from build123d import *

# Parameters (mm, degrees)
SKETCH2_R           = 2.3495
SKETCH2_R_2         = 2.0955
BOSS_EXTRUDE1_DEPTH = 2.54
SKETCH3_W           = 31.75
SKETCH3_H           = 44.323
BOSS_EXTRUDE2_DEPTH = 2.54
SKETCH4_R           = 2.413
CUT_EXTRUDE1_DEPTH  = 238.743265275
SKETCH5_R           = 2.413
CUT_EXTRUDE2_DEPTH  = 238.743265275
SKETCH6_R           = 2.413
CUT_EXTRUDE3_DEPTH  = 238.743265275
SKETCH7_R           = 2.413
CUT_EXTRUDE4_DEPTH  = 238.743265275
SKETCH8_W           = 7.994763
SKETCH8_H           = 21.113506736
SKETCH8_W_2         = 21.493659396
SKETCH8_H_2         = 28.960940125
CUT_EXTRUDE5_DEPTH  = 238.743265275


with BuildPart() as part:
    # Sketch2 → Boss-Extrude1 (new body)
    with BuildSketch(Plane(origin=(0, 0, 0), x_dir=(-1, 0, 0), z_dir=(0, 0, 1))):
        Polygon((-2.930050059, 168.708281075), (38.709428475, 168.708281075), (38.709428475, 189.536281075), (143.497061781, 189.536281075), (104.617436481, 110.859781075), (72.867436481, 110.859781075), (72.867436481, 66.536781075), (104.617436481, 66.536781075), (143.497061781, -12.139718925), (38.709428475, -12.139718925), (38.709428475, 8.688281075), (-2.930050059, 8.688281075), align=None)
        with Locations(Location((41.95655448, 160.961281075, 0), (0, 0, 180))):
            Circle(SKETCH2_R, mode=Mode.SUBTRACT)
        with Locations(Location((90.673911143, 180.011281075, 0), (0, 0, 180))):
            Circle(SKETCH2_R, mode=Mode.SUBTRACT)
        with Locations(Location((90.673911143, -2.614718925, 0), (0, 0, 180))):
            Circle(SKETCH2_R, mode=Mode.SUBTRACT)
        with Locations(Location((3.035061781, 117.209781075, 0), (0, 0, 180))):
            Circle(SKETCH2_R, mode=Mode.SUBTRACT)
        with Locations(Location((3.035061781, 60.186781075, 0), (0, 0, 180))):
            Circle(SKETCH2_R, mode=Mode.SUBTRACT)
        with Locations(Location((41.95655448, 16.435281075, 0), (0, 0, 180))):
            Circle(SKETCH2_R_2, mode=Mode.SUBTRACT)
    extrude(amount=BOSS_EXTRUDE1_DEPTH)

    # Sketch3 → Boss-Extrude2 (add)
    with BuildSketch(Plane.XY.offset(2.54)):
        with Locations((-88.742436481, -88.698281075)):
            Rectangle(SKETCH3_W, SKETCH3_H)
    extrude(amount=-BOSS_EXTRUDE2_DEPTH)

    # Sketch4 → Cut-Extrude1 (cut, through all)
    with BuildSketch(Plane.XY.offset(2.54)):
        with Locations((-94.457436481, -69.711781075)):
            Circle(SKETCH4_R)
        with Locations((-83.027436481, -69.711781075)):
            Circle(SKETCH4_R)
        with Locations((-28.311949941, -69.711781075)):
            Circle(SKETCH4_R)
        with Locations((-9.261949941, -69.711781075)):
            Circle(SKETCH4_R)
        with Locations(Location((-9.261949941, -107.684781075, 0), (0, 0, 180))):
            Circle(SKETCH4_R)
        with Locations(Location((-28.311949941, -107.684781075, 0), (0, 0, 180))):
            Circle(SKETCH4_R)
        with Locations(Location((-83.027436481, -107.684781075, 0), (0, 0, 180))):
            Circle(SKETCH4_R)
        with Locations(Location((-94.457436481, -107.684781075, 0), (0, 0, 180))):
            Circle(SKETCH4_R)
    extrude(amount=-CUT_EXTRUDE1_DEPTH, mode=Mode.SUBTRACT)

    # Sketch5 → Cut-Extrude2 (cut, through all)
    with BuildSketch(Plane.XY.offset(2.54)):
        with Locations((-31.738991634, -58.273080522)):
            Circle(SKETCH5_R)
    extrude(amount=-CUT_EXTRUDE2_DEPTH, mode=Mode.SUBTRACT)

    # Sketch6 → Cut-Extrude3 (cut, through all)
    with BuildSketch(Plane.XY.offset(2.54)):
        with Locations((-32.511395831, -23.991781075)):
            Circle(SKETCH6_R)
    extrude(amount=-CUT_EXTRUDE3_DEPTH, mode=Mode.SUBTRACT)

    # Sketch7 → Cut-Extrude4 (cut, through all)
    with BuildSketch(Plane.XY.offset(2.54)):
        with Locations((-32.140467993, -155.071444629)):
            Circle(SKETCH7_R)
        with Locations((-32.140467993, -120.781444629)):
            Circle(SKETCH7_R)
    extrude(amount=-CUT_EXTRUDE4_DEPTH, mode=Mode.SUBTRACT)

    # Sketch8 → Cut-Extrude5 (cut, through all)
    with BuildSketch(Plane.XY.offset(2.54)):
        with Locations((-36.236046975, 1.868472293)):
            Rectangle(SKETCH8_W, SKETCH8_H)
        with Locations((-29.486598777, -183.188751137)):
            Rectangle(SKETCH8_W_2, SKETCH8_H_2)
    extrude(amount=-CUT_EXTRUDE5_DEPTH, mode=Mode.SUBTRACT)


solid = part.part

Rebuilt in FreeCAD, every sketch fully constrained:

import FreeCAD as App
import Part
import Sketcher

V = App.Vector
Q = App.Units.Quantity

doc = App.newDocument("Part")
body = doc.addObject("PartDesign::Body", "Body")

# Sketch on XY plane
sketch1 = doc.addObject("Sketcher::SketchObject", "Sketch")
body.addObject(sketch1)
sketch1.AttachmentSupport = (doc.XY_Plane, [""])
sketch1.MapMode = "FlatFace"
sketch1.addGeometry([
    Part.LineSegment(V(-38.7, -168.7, 0), V(2.9, -168.7, 0)),  # 0
    Part.LineSegment(V(2.9, -168.7, 0), V(2.9, -8.7, 0)),  # 1
    Part.LineSegment(V(2.9, -8.7, 0), V(-38.7, -8.7, 0)),  # 2
    Part.LineSegment(V(-38.7, -8.7, 0), V(-38.7, 12.1, 0)),  # 3
    Part.LineSegment(V(-38.7, 12.1, 0), V(-143.5, 12.1, 0)),  # 4
    Part.LineSegment(V(-143.5, 12.1, 0), V(-104.6, -66.5, 0)),  # 5
    Part.LineSegment(V(-104.6, -66.5, 0), V(-72.9, -66.5, 0)),  # 6
    Part.LineSegment(V(-72.9, -66.5, 0), V(-72.9, -110.9, 0)),  # 7
    Part.LineSegment(V(-72.9, -110.9, 0), V(-104.6, -110.9, 0)),  # 8
    Part.LineSegment(V(-104.6, -110.9, 0), V(-143.5, -189.5, 0)),  # 9
    Part.LineSegment(V(-143.5, -189.5, 0), V(-38.7, -189.5, 0)),  # 10
    Part.LineSegment(V(-38.7, -189.5, 0), V(-38.7, -168.7, 0)),  # 11
    Part.Circle(V(-90.7, 2.6, 0), V(0, 0, 1), 2.3),  # 12
    Part.Circle(V(-42, -16.4, 0), V(0, 0, 1), 2.1),  # 13
    Part.Circle(V(-3, -60.2, 0), V(0, 0, 1), 2.3),  # 14
    Part.Circle(V(-90.7, -180, 0), V(0, 0, 1), 2.3),  # 15
    Part.Circle(V(-3, -117.2, 0), V(0, 0, 1), 2.3),  # 16
    Part.Circle(V(-42, -161, 0), V(0, 0, 1), 2.3),  # 17
], False)
sketch1.addConstraint([
    Sketcher.Constraint("Coincident", 0, 2, 1, 1),
    Sketcher.Constraint("Coincident", 1, 2, 2, 1),
    Sketcher.Constraint("Coincident", 2, 2, 3, 1),
    Sketcher.Constraint("Coincident", 3, 2, 4, 1),
    Sketcher.Constraint("Coincident", 4, 2, 5, 1),
    Sketcher.Constraint("Coincident", 5, 2, 6, 1),
    Sketcher.Constraint("Coincident", 6, 2, 7, 1),
    Sketcher.Constraint("Coincident", 7, 2, 8, 1),
    Sketcher.Constraint("Coincident", 8, 2, 9, 1),
    Sketcher.Constraint("Coincident", 9, 2, 10, 1),
    Sketcher.Constraint("Coincident", 10, 2, 11, 1),
    Sketcher.Constraint("Coincident", 11, 2, 0, 1),
    Sketcher.Constraint("Horizontal", 0),
    Sketcher.Constraint("Vertical", 1),
    Sketcher.Constraint("Horizontal", 2),
    Sketcher.Constraint("Vertical", 3),
    Sketcher.Constraint("Horizontal", 4),
    Sketcher.Constraint("Horizontal", 6),
    Sketcher.Constraint("Vertical", 7),
    Sketcher.Constraint("Horizontal", 8),
    Sketcher.Constraint("Horizontal", 10),
    Sketcher.Constraint("Vertical", 11),
    Sketcher.Constraint("Equal", 12, 14),
    Sketcher.Constraint("Equal", 14, 15),
    Sketcher.Constraint("Equal", 15, 16),
    Sketcher.Constraint("Equal", 16, 17),
    Sketcher.Constraint("Vertical", 12, 3, 15, 3),
    Sketcher.Constraint("Vertical", 14, 3, 16, 3),
    Sketcher.Constraint("Vertical", 13, 3, 17, 3),
    Sketcher.Constraint("Vertical", 5, 2, 8, 2),
    Sketcher.Constraint("Vertical", 4, 2, 9, 2),
    Sketcher.Constraint("Vertical", 3, 2, 10, 2),
    Sketcher.Constraint("Equal", 3, 11),
    Sketcher.Constraint("Equal", 5, 9),
    Sketcher.Constraint("Diameter", 12, Q("0.185 in")),
    Sketcher.Constraint("Diameter", 13, Q("0.165 in")),
    Sketcher.Constraint("DistanceY", 1, 1, 1, 2, Q("6.3 in")),
    Sketcher.Constraint("DistanceX", 6, 1, 6, 2, Q("1.25 in")),
    Sketcher.Constraint("DistanceY", 3, 1, 3, 2, Q("0.82 in")),
    Sketcher.Constraint("DistanceY", 7, 2, 7, 1, Q("1.745 in")),
    Sketcher.Constraint("DistanceY", 13, 3, 12, 3, Q("0.75 in")),
    Sketcher.Constraint("DistanceY", 15, 3, 13, 3, Q("6.44 in")),
    Sketcher.Constraint("DistanceY", 15, 3, 17, 3, Q("0.75 in")),
    Sketcher.Constraint("DistanceY", 5, 2, 14, 3, Q("0.25 in")),
    Sketcher.Constraint("DistanceY", 16, 3, 7, 2, Q("0.25 in")),
    Sketcher.Constraint("DistanceY", 0, 2, 17, 3, Q("0.305 in")),
    Sketcher.Constraint("DistanceX", 0, 1, 0, 2, Q("41.639479 mm")),
    Sketcher.Constraint("DistanceX", 4, 2, 4, 1, Q("104.787633 mm")),
    Sketcher.Constraint("DistanceX", 12, 3, -1, 1, Q("90.673911 mm")),
    Sketcher.Constraint("DistanceY", -1, 1, 12, 3, Q("2.614719 mm")),
    Sketcher.Constraint("DistanceX", 14, 3, -1, 1, Q("3.035062 mm")),
    Sketcher.Constraint("DistanceX", -1, 1, 0, 2, Q("2.93005 mm")),
    Sketcher.Constraint("DistanceX", 5, 2, 2, 2, Q("65.908008 mm")),
    Sketcher.Constraint("DistanceX", 13, 3, -1, 1, Q("41.956554 mm")),
])
pad1 = doc.addObject("PartDesign::Pad", "Pad")
body.addObject(pad1)
pad1.Profile = sketch1
pad1.Length = Q("0.1 in")

# Sketch on XY plane
sketch2 = doc.addObject("Sketcher::SketchObject", "Sketch001")
body.addObject(sketch2)
sketch2.AttachmentSupport = (doc.XY_Plane, [""])
sketch2.MapMode = "FlatFace"
sketch2.AttachmentOffset = App.Placement(V(0, 0, 0.1 * 25.4), App.Rotation())
sketch2.addGeometry([
    Part.LineSegment(V(-105, -67, 0), V(-105, -111, 0)),
    Part.LineSegment(V(-105, -111, 0), V(-73, -111, 0)),
    Part.LineSegment(V(-73, -111, 0), V(-73, -67, 0)),
    Part.LineSegment(V(-73, -67, 0), V(-105, -67, 0)),
], False)
sketch2.addConstraint([
    Sketcher.Constraint("Coincident", 0, 2, 1, 1),
    Sketcher.Constraint("Coincident", 1, 2, 2, 1),
    Sketcher.Constraint("Coincident", 2, 2, 3, 1),
    Sketcher.Constraint("Coincident", 3, 2, 0, 1),
    Sketcher.Constraint("Vertical", 0),
    Sketcher.Constraint("Horizontal", 1),
    Sketcher.Constraint("Vertical", 2),
    Sketcher.Constraint("Horizontal", 3),
    Sketcher.Constraint("DistanceX", 1, 1, 1, 2, Q("1.25 in")),
    Sketcher.Constraint("DistanceY", 0, 2, 0, 1, Q("1.745 in")),
    Sketcher.Constraint("DistanceY", 0, 2, -1, 1, Q("110.859781 mm")),
    Sketcher.Constraint("DistanceX", 0, 2, -1, 1, Q("104.617436 mm")),
])
pad2 = doc.addObject("PartDesign::Pad", "Pad001")
body.addObject(pad2)
pad2.Profile = sketch2
pad2.Length = Q("0.1 in")
pad2.Reversed = True

# Sketch on XY plane
sketch3 = doc.addObject("Sketcher::SketchObject", "Sketch002")
body.addObject(sketch3)
sketch3.AttachmentSupport = (doc.XY_Plane, [""])
sketch3.MapMode = "FlatFace"
sketch3.AttachmentOffset = App.Placement(V(0, 0, 0.1 * 25.4), App.Rotation())
sketch3.addGeometry([
    Part.Circle(V(-94.5, -69.7, 0), V(0, 0, 1), 2.4),  # 0
    Part.Circle(V(-83, -69.7, 0), V(0, 0, 1), 2.4),  # 1
    Part.Circle(V(-28.3, -69.7, 0), V(0, 0, 1), 2.4),  # 2
    Part.Circle(V(-9.3, -69.7, 0), V(0, 0, 1), 2.4),  # 3
    Part.Circle(V(-9.3, -107.7, 0), V(0, 0, 1), 2.4),  # 4
    Part.Circle(V(-28.3, -107.7, 0), V(0, 0, 1), 2.4),  # 5
    Part.Circle(V(-83, -107.7, 0), V(0, 0, 1), 2.4),  # 6
    Part.Circle(V(-94.5, -107.7, 0), V(0, 0, 1), 2.4),  # 7
], False)
sketch3.addConstraint([
    Sketcher.Constraint("Equal", 0, 1),
    Sketcher.Constraint("Equal", 1, 2),
    Sketcher.Constraint("Equal", 2, 3),
    Sketcher.Constraint("Equal", 3, 4),
    Sketcher.Constraint("Equal", 4, 5),
    Sketcher.Constraint("Equal", 5, 6),
    Sketcher.Constraint("Equal", 6, 7),
    Sketcher.Constraint("Horizontal", 0, 3, 1, 3),
    Sketcher.Constraint("Horizontal", 1, 3, 2, 3),
    Sketcher.Constraint("Horizontal", 2, 3, 3, 3),
    Sketcher.Constraint("Horizontal", 4, 3, 5, 3),
    Sketcher.Constraint("Horizontal", 5, 3, 6, 3),
    Sketcher.Constraint("Horizontal", 6, 3, 7, 3),
    Sketcher.Constraint("Vertical", 3, 3, 4, 3),
    Sketcher.Constraint("Vertical", 2, 3, 5, 3),
    Sketcher.Constraint("Vertical", 1, 3, 6, 3),
    Sketcher.Constraint("Vertical", 0, 3, 7, 3),
    Sketcher.Constraint("Diameter", 0, Q("0.19 in")),
    Sketcher.Constraint("DistanceX", 0, 3, 1, 3, Q("0.45 in")),
    Sketcher.Constraint("DistanceX", 2, 3, 3, 3, Q("0.75 in")),
    Sketcher.Constraint("DistanceY", 4, 3, 3, 3, Q("1.495 in")),
    Sketcher.Constraint("DistanceY", 0, 3, -1, 1, Q("69.711781 mm")),
    Sketcher.Constraint("DistanceX", 2, 3, -1, 1, Q("28.31195 mm")),
    Sketcher.Constraint("DistanceX", 0, 3, -1, 1, Q("94.457436 mm")),
])
pocket1 = doc.addObject("PartDesign::Pocket", "Pocket")
body.addObject(pocket1)
pocket1.Profile = sketch3
pocket1.Type = "ThroughAll"

# Sketch on XY plane
sketch4 = doc.addObject("Sketcher::SketchObject", "Sketch003")
body.addObject(sketch4)
sketch4.AttachmentSupport = (doc.XY_Plane, [""])
sketch4.MapMode = "FlatFace"
sketch4.AttachmentOffset = App.Placement(V(0, 0, 0.1 * 25.4), App.Rotation())
sketch4.addGeometry(Part.Circle(V(-31.7, -58.3, 0), V(0, 0, 1), 2.4), False)
sketch4.addConstraint([
    Sketcher.Constraint("Diameter", 0, Q("0.19 in")),
    Sketcher.Constraint("DistanceX", 0, 3, -1, 1, Q("31.738992 mm")),
    Sketcher.Constraint("DistanceY", 0, 3, -1, 1, Q("58.273081 mm")),
])
pocket2 = doc.addObject("PartDesign::Pocket", "Pocket001")
body.addObject(pocket2)
pocket2.Profile = sketch4
pocket2.Type = "ThroughAll"

# Sketch on XY plane
sketch5 = doc.addObject("Sketcher::SketchObject", "Sketch004")
body.addObject(sketch5)
sketch5.AttachmentSupport = (doc.XY_Plane, [""])
sketch5.MapMode = "FlatFace"
sketch5.AttachmentOffset = App.Placement(V(0, 0, 0.1 * 25.4), App.Rotation())
sketch5.addGeometry(Part.Circle(V(-32.5, -24, 0), V(0, 0, 1), 2.4), False)
sketch5.addConstraint([
    Sketcher.Constraint("Diameter", 0, Q("0.19 in")),
    Sketcher.Constraint("DistanceY", 0, 3, -1, 1, Q("23.991781 mm")),
    Sketcher.Constraint("DistanceX", 0, 3, -1, 1, Q("32.511396 mm")),
])
pocket3 = doc.addObject("PartDesign::Pocket", "Pocket002")
body.addObject(pocket3)
pocket3.Profile = sketch5
pocket3.Type = "ThroughAll"

# Sketch on XY plane
sketch6 = doc.addObject("Sketcher::SketchObject", "Sketch005")
body.addObject(sketch6)
sketch6.AttachmentSupport = (doc.XY_Plane, [""])
sketch6.MapMode = "FlatFace"
sketch6.AttachmentOffset = App.Placement(V(0, 0, 0.1 * 25.4), App.Rotation())
sketch6.addGeometry([
    Part.Circle(V(-32.1, -155.1, 0), V(0, 0, 1), 2.4),
    Part.Circle(V(-32.1, -120.8, 0), V(0, 0, 1), 2.4),
], False)
sketch6.addConstraint([
    Sketcher.Constraint("Equal", 0, 1),
    Sketcher.Constraint("Vertical", 0, 3, 1, 3),
    Sketcher.Constraint("Diameter", 0, Q("0.19 in")),
    Sketcher.Constraint("DistanceY", 0, 3, 1, 3, Q("1.35 in")),
    Sketcher.Constraint("DistanceX", 0, 3, -1, 1, Q("32.140468 mm")),
    Sketcher.Constraint("DistanceY", 0, 3, -1, 1, Q("155.071445 mm")),
])
pocket4 = doc.addObject("PartDesign::Pocket", "Pocket003")
body.addObject(pocket4)
pocket4.Profile = sketch6
pocket4.Type = "ThroughAll"

# Sketch on XY plane
sketch7 = doc.addObject("Sketcher::SketchObject", "Sketch006")
body.addObject(sketch7)
sketch7.AttachmentSupport = (doc.XY_Plane, [""])
sketch7.MapMode = "FlatFace"
sketch7.AttachmentOffset = App.Placement(V(0, 0, 0.1 * 25.4), App.Rotation())
sketch7.addGeometry([
    Part.LineSegment(V(-40, 12, 0), V(-40, -9, 0)),  # 0
    Part.LineSegment(V(-40, -9, 0), V(-32, -9, 0)),  # 1
    Part.LineSegment(V(-32, -9, 0), V(-32, 12, 0)),  # 2
    Part.LineSegment(V(-32, 12, 0), V(-40, 12, 0)),  # 3
    Part.LineSegment(V(-40, -169, 0), V(-40, -198, 0)),  # 4
    Part.LineSegment(V(-40, -198, 0), V(-19, -198, 0)),  # 5
    Part.LineSegment(V(-19, -198, 0), V(-19, -169, 0)),  # 6
    Part.LineSegment(V(-19, -169, 0), V(-40, -169, 0)),  # 7
], False)
sketch7.addConstraint([
    Sketcher.Constraint("Coincident", 0, 2, 1, 1),
    Sketcher.Constraint("Coincident", 1, 2, 2, 1),
    Sketcher.Constraint("Coincident", 2, 2, 3, 1),
    Sketcher.Constraint("Coincident", 3, 2, 0, 1),
    Sketcher.Constraint("Coincident", 4, 2, 5, 1),
    Sketcher.Constraint("Coincident", 5, 2, 6, 1),
    Sketcher.Constraint("Coincident", 6, 2, 7, 1),
    Sketcher.Constraint("Coincident", 7, 2, 4, 1),
    Sketcher.Constraint("Vertical", 0),
    Sketcher.Constraint("Horizontal", 1),
    Sketcher.Constraint("Vertical", 2),
    Sketcher.Constraint("Horizontal", 3),
    Sketcher.Constraint("Vertical", 4),
    Sketcher.Constraint("Horizontal", 5),
    Sketcher.Constraint("Vertical", 6),
    Sketcher.Constraint("Horizontal", 7),
    Sketcher.Constraint("Vertical", 3, 2, 4, 2),
    Sketcher.Constraint("DistanceY", 6, 2, 1, 2, Q("6.3 in")),
    Sketcher.Constraint("DistanceX", 5, 1, 5, 2, Q("21.493659 mm")),
    Sketcher.Constraint("DistanceY", 4, 2, 4, 1, Q("28.96094 mm")),
    Sketcher.Constraint("DistanceX", 1, 1, 1, 2, Q("7.994763 mm")),
    Sketcher.Constraint("DistanceY", 0, 2, 0, 1, Q("21.113507 mm")),
    Sketcher.Constraint("DistanceX", 0, 2, -1, 1, Q("40.233428 mm")),
    Sketcher.Constraint("DistanceY", 0, 2, -1, 1, Q("8.688281 mm")),
])
pocket5 = doc.addObject("PartDesign::Pocket", "Pocket004")
body.addObject(pocket5)
pocket5.Profile = sketch7
pocket5.Type = "ThroughAll"

doc.recompute()
